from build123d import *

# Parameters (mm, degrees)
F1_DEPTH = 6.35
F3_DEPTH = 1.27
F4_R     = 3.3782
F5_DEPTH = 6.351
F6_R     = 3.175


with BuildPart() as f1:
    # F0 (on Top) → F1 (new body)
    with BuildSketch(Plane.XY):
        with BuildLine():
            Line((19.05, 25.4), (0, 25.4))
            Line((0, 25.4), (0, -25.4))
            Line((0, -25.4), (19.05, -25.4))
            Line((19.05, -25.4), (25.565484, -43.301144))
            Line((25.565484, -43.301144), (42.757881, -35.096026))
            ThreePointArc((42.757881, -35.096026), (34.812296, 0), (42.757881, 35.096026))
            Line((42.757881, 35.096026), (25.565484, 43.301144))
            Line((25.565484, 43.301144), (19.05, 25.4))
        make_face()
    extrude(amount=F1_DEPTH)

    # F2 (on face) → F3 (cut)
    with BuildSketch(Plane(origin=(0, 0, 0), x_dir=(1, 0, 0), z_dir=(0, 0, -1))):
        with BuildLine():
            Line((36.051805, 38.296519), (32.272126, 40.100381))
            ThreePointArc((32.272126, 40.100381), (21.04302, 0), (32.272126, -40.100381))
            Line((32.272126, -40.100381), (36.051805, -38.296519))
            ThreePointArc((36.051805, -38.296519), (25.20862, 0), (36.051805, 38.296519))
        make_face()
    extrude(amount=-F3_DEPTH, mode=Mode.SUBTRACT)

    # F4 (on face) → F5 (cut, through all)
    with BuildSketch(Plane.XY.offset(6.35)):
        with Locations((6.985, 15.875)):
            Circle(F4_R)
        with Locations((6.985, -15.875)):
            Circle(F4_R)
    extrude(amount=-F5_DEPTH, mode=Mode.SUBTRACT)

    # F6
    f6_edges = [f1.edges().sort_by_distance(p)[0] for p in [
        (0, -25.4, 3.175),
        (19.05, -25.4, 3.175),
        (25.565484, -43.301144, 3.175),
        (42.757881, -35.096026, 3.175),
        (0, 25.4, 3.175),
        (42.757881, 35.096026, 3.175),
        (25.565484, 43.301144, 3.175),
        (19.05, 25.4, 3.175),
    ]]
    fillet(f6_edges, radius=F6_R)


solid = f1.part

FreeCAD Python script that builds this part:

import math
import FreeCAD as App
import Part
import Sketcher
Q = App.Units.Quantity


def edges_at(feature, points):
    """Names of the edges that pass closest to the given points."""
    edges = feature.Shape.Edges
    near = lambda p: min(range(len(edges)), key=lambda i: edges[i].distToShape(Part.Vertex(*p))[0])
    return sorted({f"Edge{near(p) + 1}" for p in points})

doc = App.newDocument("Part")
body = doc.addObject("PartDesign::Body", "Body")

# Sketch on XY plane
sketch1 = doc.addObject("Sketcher::SketchObject", "Sketch")
body.addObject(sketch1)
sketch1.AttachmentSupport = (doc.XY_Plane, [""])
sketch1.MapMode = "FlatFace"
sketch1.addGeometry([
    Part.LineSegment(App.Vector(19.05, 25.4, 0), App.Vector(0, 25.4, 0)),  # 0
    Part.LineSegment(App.Vector(0, 25.4, 0), App.Vector(0, -25.4, 0)),  # 1
    Part.LineSegment(App.Vector(0, -25.4, 0), App.Vector(19.05, -25.4, 0)),  # 2
    Part.LineSegment(App.Vector(19.05, -25.4, 0), App.Vector(25.565484, -43.301144, 0)),  # 3
    Part.LineSegment(App.Vector(25.565484, -43.301144, 0), App.Vector(42.757881, -35.096026, 0)),  # 4
    Part.ArcOfCircle(Part.Circle(App.Vector(116.295495, 0, 0), App.Vector(0, 0, 1), 81.483199), math.radians(154.487063), math.radians(205.512937)),  # 5
    Part.LineSegment(App.Vector(42.757881, 35.096026, 0), App.Vector(25.565484, 43.301144, 0)),  # 6
    Part.LineSegment(App.Vector(25.565484, 43.301144, 0), App.Vector(19.05, 25.4, 0)),  # 7
], False)
sketch1.addConstraint([
    Sketcher.Constraint("Coincident", 0, 2, 1, 1),
    Sketcher.Constraint("Coincident", 1, 2, 2, 1),
    Sketcher.Constraint("Coincident", 2, 2, 3, 1),
    Sketcher.Constraint("Coincident", 3, 2, 4, 1),
    Sketcher.Constraint("Coincident", 4, 2, 5, 2),
    Sketcher.Constraint("Coincident", 5, 1, 6, 1),
    Sketcher.Constraint("Coincident", 6, 2, 7, 1),
    Sketcher.Constraint("Coincident", 7, 2, 0, 1),
    Sketcher.Constraint("Horizontal", 0),
    Sketcher.Constraint("Vertical", 1),
    Sketcher.Constraint("Horizontal", 2),
    Sketcher.Constraint("Symmetric", 0, 2, 1, 2, -1, 1),
    Sketcher.Constraint("Symmetric", 4, 2, 5, 1, -1),
    Sketcher.Constraint("Symmetric", 3, 2, 6, 2, -1),
    Sketcher.Constraint("Vertical", 2, 2, 7, 2),
    Sketcher.Constraint("Equal", 3, 4),
    Sketcher.Constraint("DistanceY", 1, 2, 1, 1, Q("2 in")),
    Sketcher.Constraint("Angle", 3, Q("-69.999999 deg")),
    Sketcher.Constraint("Radius", 5, Q("3.2079999 in")),
    Sketcher.Constraint("DistanceX", 0, 2, 0, 1, Q("0.75 in")),
    Sketcher.Constraint("Distance", 3, Q("0.75 in")),
    Sketcher.Constraint("DistanceX", -1, 1, 4, 2, Q("42.757881 mm")),
])
pad1 = doc.addObject("PartDesign::Pad", "Pad")
body.addObject(pad1)
pad1.Profile = sketch1
pad1.Length = Q("0.25 in")

# Sketch on XY plane
sketch2 = doc.addObject("Sketcher::SketchObject", "Sketch001")
body.addObject(sketch2)
sketch2.AttachmentSupport = (doc.XY_Plane, [""])
sketch2.MapMode = "FlatFace"
sketch2.addGeometry([
    Part.LineSegment(App.Vector(36.051805, -38.296519, 0), App.Vector(32.272126, -40.100381, 0)),
    Part.ArcOfCircle(Part.Circle(App.Vector(98.259024, 0, 0), App.Vector(0, 0, 1), 77.216004), math.radians(148.712859), math.radians(211.287141)),
    Part.LineSegment(App.Vector(32.272126, 40.100381, 0), App.Vector(36.051805, 38.296519, 0)),
    Part.ArcOfCircle(Part.Circle(App.Vector(98.259021, 0, 0), App.Vector(0, 0, 1), 73.050401), math.radians(148.382374), math.radians(211.617626)),
], False)
sketch2.addConstraint([
    Sketcher.Constraint("Coincident", 0, 2, 1, 2),
    Sketcher.Constraint("Coincident", 1, 1, 2, 1),
    Sketcher.Constraint("Coincident", 2, 2, 3, 1),
    Sketcher.Constraint("Coincident", 3, 2, 0, 1),
    Sketcher.Constraint("Coincident", 3, 3, 1, 3),
    Sketcher.Constraint("Symmetric", 0, 2, 1, 1, -1),
    Sketcher.Constraint("Vertical", 2, 2, 3, 2),
    Sketcher.Constraint("Radius", 1, Q("3.0400001 in")),
    Sketcher.Constraint("Radius", 3, Q("2.876 in")),
    Sketcher.Constraint("DistanceY", 0, 2, 2, 2, Q("78.3969 mm")),
    Sketcher.Constraint("DistanceX", -1, 1, 3, 3, Q("98.259021 mm")),
    Sketcher.Constraint("DistanceY", 0, 2, -1, 1, Q("40.100381 mm")),
])
pocket1 = doc.addObject("PartDesign::Pocket", "Pocket")
body.addObject(pocket1)
pocket1.Profile = sketch2
pocket1.Length = Q("0.05 in")
pocket1.Reversed = True

# Sketch on XY plane
sketch3 = doc.addObject("Sketcher::SketchObject", "Sketch002")
body.addObject(sketch3)
sketch3.AttachmentSupport = (doc.XY_Plane, [""])
sketch3.MapMode = "FlatFace"
sketch3.AttachmentOffset = App.Placement(App.Vector(0, 0, 0.25 * 25.4), App.Rotation())
sketch3.addGeometry([
    Part.Circle(App.Vector(6.985, 15.875, 0), App.Vector(0, 0, 1), 3.3782),
    Part.Circle(App.Vector(6.985, -15.875, 0), App.Vector(0, 0, 1), 3.3782),
], False)
sketch3.addConstraint([
    Sketcher.Constraint("Equal", 0, 1),
    Sketcher.Constraint("Symmetric", 0, 3, 1, 3, -1),
    Sketcher.Constraint("Diameter", 0, Q("0.266 in")),
    Sketcher.Constraint("DistanceY", 1, 3, 0, 3, Q("1.25 in")),
    Sketcher.Constraint("DistanceX", -1, 1, 0, 3, Q("0.275 in")),
])
pocket2 = doc.addObject("PartDesign::Pocket", "Pocket001")
body.addObject(pocket2)
pocket2.Profile = sketch3
pocket2.Type = "ThroughAll"
doc.recompute()

fillet = doc.addObject("PartDesign::Fillet", "Fillet")
body.addObject(fillet)
fillet.Base = (pocket2, edges_at(pocket2, [
    (0, -25.4, 3.175),
    (19.05, -25.4, 3.175),
    (25.565, -43.301, 3.175),
    (42.758, -35.096, 3.175),
    (0, 25.4, 3.175),
    (42.758, 35.096, 3.175),
    (25.565, 43.301, 3.175),
    (19.05, 25.4, 3.175),
]))
fillet.Radius = Q("0.125 in")

doc.recompute()
